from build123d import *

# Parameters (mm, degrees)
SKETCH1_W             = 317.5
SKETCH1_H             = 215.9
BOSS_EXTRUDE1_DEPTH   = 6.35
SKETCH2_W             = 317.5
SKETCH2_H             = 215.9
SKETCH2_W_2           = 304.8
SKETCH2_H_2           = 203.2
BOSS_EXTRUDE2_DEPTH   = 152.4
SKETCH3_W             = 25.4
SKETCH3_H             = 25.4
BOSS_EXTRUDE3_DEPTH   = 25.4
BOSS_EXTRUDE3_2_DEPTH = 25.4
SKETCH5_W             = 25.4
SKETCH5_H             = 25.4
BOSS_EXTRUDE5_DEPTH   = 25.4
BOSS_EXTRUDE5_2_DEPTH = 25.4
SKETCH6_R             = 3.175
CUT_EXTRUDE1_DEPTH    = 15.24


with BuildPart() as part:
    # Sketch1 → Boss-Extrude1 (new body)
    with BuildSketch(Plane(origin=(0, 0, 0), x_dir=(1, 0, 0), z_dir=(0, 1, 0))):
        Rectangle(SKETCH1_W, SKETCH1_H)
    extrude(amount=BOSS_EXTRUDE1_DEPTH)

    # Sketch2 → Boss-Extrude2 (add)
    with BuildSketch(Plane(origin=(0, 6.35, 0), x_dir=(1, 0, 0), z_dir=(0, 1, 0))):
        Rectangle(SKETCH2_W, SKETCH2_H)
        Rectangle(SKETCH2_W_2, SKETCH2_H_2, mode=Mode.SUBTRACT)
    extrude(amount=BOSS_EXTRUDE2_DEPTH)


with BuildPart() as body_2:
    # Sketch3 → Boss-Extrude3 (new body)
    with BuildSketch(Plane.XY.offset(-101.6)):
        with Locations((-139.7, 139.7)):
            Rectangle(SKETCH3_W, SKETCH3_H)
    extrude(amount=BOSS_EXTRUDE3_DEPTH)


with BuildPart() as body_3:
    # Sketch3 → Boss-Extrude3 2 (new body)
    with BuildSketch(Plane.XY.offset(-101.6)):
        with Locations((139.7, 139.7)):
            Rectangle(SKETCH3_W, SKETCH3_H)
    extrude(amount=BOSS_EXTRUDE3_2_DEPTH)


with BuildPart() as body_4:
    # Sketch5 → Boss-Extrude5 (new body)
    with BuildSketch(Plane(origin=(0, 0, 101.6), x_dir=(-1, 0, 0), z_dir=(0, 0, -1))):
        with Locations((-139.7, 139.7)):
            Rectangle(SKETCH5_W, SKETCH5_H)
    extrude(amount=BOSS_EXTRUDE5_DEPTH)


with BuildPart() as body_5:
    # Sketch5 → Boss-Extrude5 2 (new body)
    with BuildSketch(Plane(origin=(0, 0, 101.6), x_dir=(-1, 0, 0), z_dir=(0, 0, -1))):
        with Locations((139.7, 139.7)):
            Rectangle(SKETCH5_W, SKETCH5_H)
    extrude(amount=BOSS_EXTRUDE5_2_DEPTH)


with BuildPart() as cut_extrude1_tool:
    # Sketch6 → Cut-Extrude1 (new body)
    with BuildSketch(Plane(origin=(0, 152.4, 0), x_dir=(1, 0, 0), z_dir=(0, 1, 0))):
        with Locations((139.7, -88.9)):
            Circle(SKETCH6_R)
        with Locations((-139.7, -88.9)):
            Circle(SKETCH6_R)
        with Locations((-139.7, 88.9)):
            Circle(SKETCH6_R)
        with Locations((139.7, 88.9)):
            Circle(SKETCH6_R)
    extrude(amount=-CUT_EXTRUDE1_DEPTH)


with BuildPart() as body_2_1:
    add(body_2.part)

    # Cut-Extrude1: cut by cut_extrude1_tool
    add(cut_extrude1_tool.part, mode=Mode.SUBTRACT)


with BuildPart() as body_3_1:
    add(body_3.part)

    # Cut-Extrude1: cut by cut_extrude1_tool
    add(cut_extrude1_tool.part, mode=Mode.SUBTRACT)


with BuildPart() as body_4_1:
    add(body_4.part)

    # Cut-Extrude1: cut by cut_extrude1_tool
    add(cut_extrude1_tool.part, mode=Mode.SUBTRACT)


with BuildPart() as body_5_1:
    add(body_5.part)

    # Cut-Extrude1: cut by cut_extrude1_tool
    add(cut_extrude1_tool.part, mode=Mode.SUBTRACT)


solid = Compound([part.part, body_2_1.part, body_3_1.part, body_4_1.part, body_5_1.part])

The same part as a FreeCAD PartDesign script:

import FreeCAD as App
import Part
import Sketcher

V = App.Vector
Q = App.Units.Quantity


def add_polygon(sketch, points):
    """Adds a closed chain of lines whose ends are joined by coincident constraints."""
    first, n = sketch.GeometryCount, len(points)
    for a, b in zip(points, points[1:] + points[:1]):
        sketch.addGeometry(Part.LineSegment(App.Vector(*a, 0), App.Vector(*b, 0)), False)
    for i in range(n):
        sketch.addConstraint(Sketcher.Constraint("Coincident", first + i, 2, first + (i + 1) % n, 1))

doc = App.newDocument("Part")
body = doc.addObject("PartDesign::Body", "Body")

# Sketch on XZ plane
sketch1 = body.newObject("Sketcher::SketchObject", "Sketch")
sketch1.AttachmentSupport = (doc.getObject("XZ_Plane"), [""])
sketch1.MapMode = "FlatFace"
add_polygon(sketch1, [(-159, -108), (-159, 108), (159, 108), (159, -108)])  # lines 0-3
sketch1.addConstraint([
    Sketcher.Constraint("Vertical", 0),
    Sketcher.Constraint("Horizontal", 1),
    Sketcher.Constraint("Vertical", 2),
    Sketcher.Constraint("Horizontal", 3),
    Sketcher.Constraint("Symmetric", 0, 2, 2, 2, -1, 1),
    Sketcher.Constraint("DistanceX", 1, 1, 1, 2, Q("12.5 in")),
    Sketcher.Constraint("DistanceY", 0, 1, 0, 2, Q("8.5 in")),
])
pad1 = body.newObject("PartDesign::Pad", "Pad")
pad1.Profile = sketch1
pad1.Length = Q("0.25 in")
pad1.Reversed = True

# Sketch on XZ plane
sketch2 = body.newObject("Sketcher::SketchObject", "Sketch001")
sketch2.AttachmentSupport = (doc.getObject("XZ_Plane"), [""])
sketch2.MapMode = "FlatFace"
sketch2.AttachmentOffset = App.Placement(V(0, 0, -0.25 * 25.4), App.Rotation())
add_polygon(sketch2, [(-159, -108), (-159, 108), (159, 108), (159, -108)])  # lines 0-3
add_polygon(sketch2, [(152, 102), (-152, 102), (-152, -102), (152, -102)])  # lines 4-7
sketch2.addConstraint([
    Sketcher.Constraint("Vertical", 0),
    Sketcher.Constraint("Horizontal", 1),
    Sketcher.Constraint("Vertical", 2),
    Sketcher.Constraint("Horizontal", 3),
    Sketcher.Constraint("Horizontal", 4),
    Sketcher.Constraint("Vertical", 5),
    Sketcher.Constraint("Horizontal", 6),
    Sketcher.Constraint("Vertical", 7),
    Sketcher.Constraint("Symmetric", 0, 2, 2, 2, -1, 1),
    Sketcher.Constraint("Symmetric", 4, 2, 6, 2, -1, 1),
    Sketcher.Constraint("DistanceX", 4, 2, 4, 1, Q("12 in")),
    Sketcher.Constraint("DistanceY", 5, 2, 5, 1, Q("8 in")),
    Sketcher.Constraint("DistanceX", 1, 1, 1, 2, Q("12.5 in")),
    Sketcher.Constraint("DistanceY", 0, 1, 0, 2, Q("8.5 in")),
])
pad2 = body.newObject("PartDesign::Pad", "Pad001")
pad2.Profile = sketch2
pad2.Length = Q("6 in")
pad2.Reversed = True
body2 = doc.addObject("PartDesign::Body", "Body001")

# Sketch on XY plane
sketch3 = body2.newObject("Sketcher::SketchObject", "Sketch002")
sketch3.AttachmentSupport = (doc.getObject("XY_Plane001"), [""])
sketch3.MapMode = "FlatFace"
sketch3.AttachmentOffset = App.Placement(V(0, 0, -4 * 25.4), App.Rotation())
add_polygon(sketch3, [(-152, 152), (-152, 127), (-127, 127), (-127, 152)])  # lines 0-3
sketch3.addConstraint([
    Sketcher.Constraint("Vertical", 0),
    Sketcher.Constraint("Horizontal", 1),
    Sketcher.Constraint("Vertical", 2),
    Sketcher.Constraint("Horizontal", 3),
    Sketcher.Constraint("Equal", 3, 0),
    Sketcher.Constraint("DistanceX", 1, 1, 1, 2, Q("1 in")),
    Sketcher.Constraint("DistanceX", 0, 2, -1, 1, Q("6 in")),
    Sketcher.Constraint("DistanceY", -1, 1, 0, 2, Q("5 in")),
])
pad3 = body2.newObject("PartDesign::Pad", "Pad002")
pad3.Profile = sketch3
pad3.Length = Q("1 in")
body3 = doc.addObject("PartDesign::Body", "Body002")

# Sketch on XY plane
sketch4 = body3.newObject("Sketcher::SketchObject", "Sketch003")
sketch4.AttachmentSupport = (doc.getObject("XY_Plane002"), [""])
sketch4.MapMode = "FlatFace"
sketch4.AttachmentOffset = App.Placement(V(0, 0, -4 * 25.4), App.Rotation())
add_polygon(sketch4, [(127, 152), (127, 127), (152, 127), (152, 152)])  # lines 0-3
sketch4.addConstraint([
    Sketcher.Constraint("Vertical", 0),
    Sketcher.Constraint("Horizontal", 1),
    Sketcher.Constraint("Vertical", 2),
    Sketcher.Constraint("Horizontal", 3),
    Sketcher.Constraint("Equal", 3, 0),
    Sketcher.Constraint("DistanceX", 1, 1, 1, 2, Q("1 in")),
    Sketcher.Constraint("DistanceX", -1, 1, 0, 2, Q("5 in")),
    Sketcher.Constraint("DistanceY", -1, 1, 0, 2, Q("5 in")),
])
pad4 = body3.newObject("PartDesign::Pad", "Pad003")
pad4.Profile = sketch4
pad4.Length = Q("1 in")
body4 = doc.addObject("PartDesign::Body", "Body003")

# Sketch on XY plane
sketch5 = body4.newObject("Sketcher::SketchObject", "Sketch004")
sketch5.AttachmentSupport = (doc.getObject("XY_Plane003"), [""])
sketch5.MapMode = "FlatFace"
sketch5.AttachmentOffset = App.Placement(V(0, 0, 4 * 25.4), App.Rotation())
add_polygon(sketch5, [(152, 152), (152, 127), (127, 127), (127, 152)])  # lines 0-3
sketch5.addConstraint([
    Sketcher.Constraint("Vertical", 0),
    Sketcher.Constraint("Horizontal", 1),
    Sketcher.Constraint("Vertical", 2),
    Sketcher.Constraint("Horizontal", 3),
    Sketcher.Constraint("Equal", 3, 0),
    Sketcher.Constraint("DistanceX", 1, 2, 1, 1, Q("1 in")),
    Sketcher.Constraint("DistanceX", -1, 1, 0, 2, Q("6 in")),
    Sketcher.Constraint("DistanceY", -1, 1, 0, 2, Q("5 in")),
])
pad5 = body4.newObject("PartDesign::Pad", "Pad004")
pad5.Profile = sketch5
pad5.Length = Q("1 in")
pad5.Reversed = True
body5 = doc.addObject("PartDesign::Body", "Body004")

# Sketch on XY plane
sketch6 = body5.newObject("Sketcher::SketchObject", "Sketch005")
sketch6.AttachmentSupport = (doc.getObject("XY_Plane004"), [""])
sketch6.MapMode = "FlatFace"
sketch6.AttachmentOffset = App.Placement(V(0, 0, 4 * 25.4), App.Rotation())
add_polygon(sketch6, [(-127, 152), (-127, 127), (-152, 127), (-152, 152)])  # lines 0-3
sketch6.addConstraint([
    Sketcher.Constraint("Vertical", 0),
    Sketcher.Constraint("Horizontal", 1),
    Sketcher.Constraint("Vertical", 2),
    Sketcher.Constraint("Horizontal", 3),
    Sketcher.Constraint("Equal", 3, 0),
    Sketcher.Constraint("DistanceX", 1, 2, 1, 1, Q("1 in")),
    Sketcher.Constraint("DistanceX", 0, 2, -1, 1, Q("5 in")),
    Sketcher.Constraint("DistanceY", -1, 1, 0, 2, Q("5 in")),
])
pad6 = body5.newObject("PartDesign::Pad", "Pad005")
pad6.Profile = sketch6
pad6.Length = Q("1 in")
pad6.Reversed = True
body6 = doc.addObject("PartDesign::Body", "Body005")
body6.AllowCompound = True

# Sketch on XZ plane
sketch7 = body6.newObject("Sketcher::SketchObject", "Sketch006")
sketch7.AttachmentSupport = (doc.getObject("XZ_Plane005"), [""])
sketch7.MapMode = "FlatFace"
sketch7.AttachmentOffset = App.Placement(V(0, 0, -6 * 25.4), App.Rotation())
sketch7.addGeometry([
    Part.Circle(V(139.7, 88.9, 0), V(0, 0, 1), 3.2),
    Part.Circle(V(-139.7, 88.9, 0), V(0, 0, 1), 3.2),
    Part.Circle(V(-139.7, -88.9, 0), V(0, 0, 1), 3.2),
    Part.Circle(V(139.7, -88.9, 0), V(0, 0, 1), 3.2),
], False)
sketch7.addConstraint([
    Sketcher.Constraint("Equal", 0, 1),
    Sketcher.Constraint("Equal", 1, 2),
    Sketcher.Constraint("Equal", 2, 3),
    Sketcher.Constraint("Symmetric", 0, 3, 2, 3, -1, 1),
    Sketcher.Constraint("Symmetric", 1, 3, 3, 3, -1, 1),
    Sketcher.Constraint("Symmetric", 0, 3, 1, 3, -2),
    Sketcher.Constraint("Diameter", 0, Q("0.25 in")),
    Sketcher.Constraint("DistanceX", 1, 3, 0, 3, Q("11 in")),
    Sketcher.Constraint("DistanceY", 2, 3, 1, 3, Q("7 in")),
])
pad7 = body6.newObject("PartDesign::Pad", "Pad006")
pad7.Profile = sketch7
pad7.Length = Q("0.6 in")
doc.recompute()

body7 = doc.addObject("PartDesign::Body", "Body006")
body7.BaseFeature = body6
boolean = body2.newObject("PartDesign::Boolean", "Boolean")
boolean.Type = "Cut"
boolean.addObjects([body7])
doc.recompute()

body8 = doc.addObject("PartDesign::Body", "Body007")
body8.BaseFeature = body6
boolean2 = body3.newObject("PartDesign::Boolean", "Boolean001")
boolean2.Type = "Cut"
boolean2.addObjects([body8])
doc.recompute()

body9 = doc.addObject("PartDesign::Body", "Body008")
body9.BaseFeature = body6
boolean3 = body4.newObject("PartDesign::Boolean", "Boolean002")
boolean3.Type = "Cut"
boolean3.addObjects([body9])
doc.recompute()

boolean4 = body5.newObject("PartDesign::Boolean", "Boolean003")
boolean4.Type = "Cut"
boolean4.addObjects([body6])

doc.recompute()
